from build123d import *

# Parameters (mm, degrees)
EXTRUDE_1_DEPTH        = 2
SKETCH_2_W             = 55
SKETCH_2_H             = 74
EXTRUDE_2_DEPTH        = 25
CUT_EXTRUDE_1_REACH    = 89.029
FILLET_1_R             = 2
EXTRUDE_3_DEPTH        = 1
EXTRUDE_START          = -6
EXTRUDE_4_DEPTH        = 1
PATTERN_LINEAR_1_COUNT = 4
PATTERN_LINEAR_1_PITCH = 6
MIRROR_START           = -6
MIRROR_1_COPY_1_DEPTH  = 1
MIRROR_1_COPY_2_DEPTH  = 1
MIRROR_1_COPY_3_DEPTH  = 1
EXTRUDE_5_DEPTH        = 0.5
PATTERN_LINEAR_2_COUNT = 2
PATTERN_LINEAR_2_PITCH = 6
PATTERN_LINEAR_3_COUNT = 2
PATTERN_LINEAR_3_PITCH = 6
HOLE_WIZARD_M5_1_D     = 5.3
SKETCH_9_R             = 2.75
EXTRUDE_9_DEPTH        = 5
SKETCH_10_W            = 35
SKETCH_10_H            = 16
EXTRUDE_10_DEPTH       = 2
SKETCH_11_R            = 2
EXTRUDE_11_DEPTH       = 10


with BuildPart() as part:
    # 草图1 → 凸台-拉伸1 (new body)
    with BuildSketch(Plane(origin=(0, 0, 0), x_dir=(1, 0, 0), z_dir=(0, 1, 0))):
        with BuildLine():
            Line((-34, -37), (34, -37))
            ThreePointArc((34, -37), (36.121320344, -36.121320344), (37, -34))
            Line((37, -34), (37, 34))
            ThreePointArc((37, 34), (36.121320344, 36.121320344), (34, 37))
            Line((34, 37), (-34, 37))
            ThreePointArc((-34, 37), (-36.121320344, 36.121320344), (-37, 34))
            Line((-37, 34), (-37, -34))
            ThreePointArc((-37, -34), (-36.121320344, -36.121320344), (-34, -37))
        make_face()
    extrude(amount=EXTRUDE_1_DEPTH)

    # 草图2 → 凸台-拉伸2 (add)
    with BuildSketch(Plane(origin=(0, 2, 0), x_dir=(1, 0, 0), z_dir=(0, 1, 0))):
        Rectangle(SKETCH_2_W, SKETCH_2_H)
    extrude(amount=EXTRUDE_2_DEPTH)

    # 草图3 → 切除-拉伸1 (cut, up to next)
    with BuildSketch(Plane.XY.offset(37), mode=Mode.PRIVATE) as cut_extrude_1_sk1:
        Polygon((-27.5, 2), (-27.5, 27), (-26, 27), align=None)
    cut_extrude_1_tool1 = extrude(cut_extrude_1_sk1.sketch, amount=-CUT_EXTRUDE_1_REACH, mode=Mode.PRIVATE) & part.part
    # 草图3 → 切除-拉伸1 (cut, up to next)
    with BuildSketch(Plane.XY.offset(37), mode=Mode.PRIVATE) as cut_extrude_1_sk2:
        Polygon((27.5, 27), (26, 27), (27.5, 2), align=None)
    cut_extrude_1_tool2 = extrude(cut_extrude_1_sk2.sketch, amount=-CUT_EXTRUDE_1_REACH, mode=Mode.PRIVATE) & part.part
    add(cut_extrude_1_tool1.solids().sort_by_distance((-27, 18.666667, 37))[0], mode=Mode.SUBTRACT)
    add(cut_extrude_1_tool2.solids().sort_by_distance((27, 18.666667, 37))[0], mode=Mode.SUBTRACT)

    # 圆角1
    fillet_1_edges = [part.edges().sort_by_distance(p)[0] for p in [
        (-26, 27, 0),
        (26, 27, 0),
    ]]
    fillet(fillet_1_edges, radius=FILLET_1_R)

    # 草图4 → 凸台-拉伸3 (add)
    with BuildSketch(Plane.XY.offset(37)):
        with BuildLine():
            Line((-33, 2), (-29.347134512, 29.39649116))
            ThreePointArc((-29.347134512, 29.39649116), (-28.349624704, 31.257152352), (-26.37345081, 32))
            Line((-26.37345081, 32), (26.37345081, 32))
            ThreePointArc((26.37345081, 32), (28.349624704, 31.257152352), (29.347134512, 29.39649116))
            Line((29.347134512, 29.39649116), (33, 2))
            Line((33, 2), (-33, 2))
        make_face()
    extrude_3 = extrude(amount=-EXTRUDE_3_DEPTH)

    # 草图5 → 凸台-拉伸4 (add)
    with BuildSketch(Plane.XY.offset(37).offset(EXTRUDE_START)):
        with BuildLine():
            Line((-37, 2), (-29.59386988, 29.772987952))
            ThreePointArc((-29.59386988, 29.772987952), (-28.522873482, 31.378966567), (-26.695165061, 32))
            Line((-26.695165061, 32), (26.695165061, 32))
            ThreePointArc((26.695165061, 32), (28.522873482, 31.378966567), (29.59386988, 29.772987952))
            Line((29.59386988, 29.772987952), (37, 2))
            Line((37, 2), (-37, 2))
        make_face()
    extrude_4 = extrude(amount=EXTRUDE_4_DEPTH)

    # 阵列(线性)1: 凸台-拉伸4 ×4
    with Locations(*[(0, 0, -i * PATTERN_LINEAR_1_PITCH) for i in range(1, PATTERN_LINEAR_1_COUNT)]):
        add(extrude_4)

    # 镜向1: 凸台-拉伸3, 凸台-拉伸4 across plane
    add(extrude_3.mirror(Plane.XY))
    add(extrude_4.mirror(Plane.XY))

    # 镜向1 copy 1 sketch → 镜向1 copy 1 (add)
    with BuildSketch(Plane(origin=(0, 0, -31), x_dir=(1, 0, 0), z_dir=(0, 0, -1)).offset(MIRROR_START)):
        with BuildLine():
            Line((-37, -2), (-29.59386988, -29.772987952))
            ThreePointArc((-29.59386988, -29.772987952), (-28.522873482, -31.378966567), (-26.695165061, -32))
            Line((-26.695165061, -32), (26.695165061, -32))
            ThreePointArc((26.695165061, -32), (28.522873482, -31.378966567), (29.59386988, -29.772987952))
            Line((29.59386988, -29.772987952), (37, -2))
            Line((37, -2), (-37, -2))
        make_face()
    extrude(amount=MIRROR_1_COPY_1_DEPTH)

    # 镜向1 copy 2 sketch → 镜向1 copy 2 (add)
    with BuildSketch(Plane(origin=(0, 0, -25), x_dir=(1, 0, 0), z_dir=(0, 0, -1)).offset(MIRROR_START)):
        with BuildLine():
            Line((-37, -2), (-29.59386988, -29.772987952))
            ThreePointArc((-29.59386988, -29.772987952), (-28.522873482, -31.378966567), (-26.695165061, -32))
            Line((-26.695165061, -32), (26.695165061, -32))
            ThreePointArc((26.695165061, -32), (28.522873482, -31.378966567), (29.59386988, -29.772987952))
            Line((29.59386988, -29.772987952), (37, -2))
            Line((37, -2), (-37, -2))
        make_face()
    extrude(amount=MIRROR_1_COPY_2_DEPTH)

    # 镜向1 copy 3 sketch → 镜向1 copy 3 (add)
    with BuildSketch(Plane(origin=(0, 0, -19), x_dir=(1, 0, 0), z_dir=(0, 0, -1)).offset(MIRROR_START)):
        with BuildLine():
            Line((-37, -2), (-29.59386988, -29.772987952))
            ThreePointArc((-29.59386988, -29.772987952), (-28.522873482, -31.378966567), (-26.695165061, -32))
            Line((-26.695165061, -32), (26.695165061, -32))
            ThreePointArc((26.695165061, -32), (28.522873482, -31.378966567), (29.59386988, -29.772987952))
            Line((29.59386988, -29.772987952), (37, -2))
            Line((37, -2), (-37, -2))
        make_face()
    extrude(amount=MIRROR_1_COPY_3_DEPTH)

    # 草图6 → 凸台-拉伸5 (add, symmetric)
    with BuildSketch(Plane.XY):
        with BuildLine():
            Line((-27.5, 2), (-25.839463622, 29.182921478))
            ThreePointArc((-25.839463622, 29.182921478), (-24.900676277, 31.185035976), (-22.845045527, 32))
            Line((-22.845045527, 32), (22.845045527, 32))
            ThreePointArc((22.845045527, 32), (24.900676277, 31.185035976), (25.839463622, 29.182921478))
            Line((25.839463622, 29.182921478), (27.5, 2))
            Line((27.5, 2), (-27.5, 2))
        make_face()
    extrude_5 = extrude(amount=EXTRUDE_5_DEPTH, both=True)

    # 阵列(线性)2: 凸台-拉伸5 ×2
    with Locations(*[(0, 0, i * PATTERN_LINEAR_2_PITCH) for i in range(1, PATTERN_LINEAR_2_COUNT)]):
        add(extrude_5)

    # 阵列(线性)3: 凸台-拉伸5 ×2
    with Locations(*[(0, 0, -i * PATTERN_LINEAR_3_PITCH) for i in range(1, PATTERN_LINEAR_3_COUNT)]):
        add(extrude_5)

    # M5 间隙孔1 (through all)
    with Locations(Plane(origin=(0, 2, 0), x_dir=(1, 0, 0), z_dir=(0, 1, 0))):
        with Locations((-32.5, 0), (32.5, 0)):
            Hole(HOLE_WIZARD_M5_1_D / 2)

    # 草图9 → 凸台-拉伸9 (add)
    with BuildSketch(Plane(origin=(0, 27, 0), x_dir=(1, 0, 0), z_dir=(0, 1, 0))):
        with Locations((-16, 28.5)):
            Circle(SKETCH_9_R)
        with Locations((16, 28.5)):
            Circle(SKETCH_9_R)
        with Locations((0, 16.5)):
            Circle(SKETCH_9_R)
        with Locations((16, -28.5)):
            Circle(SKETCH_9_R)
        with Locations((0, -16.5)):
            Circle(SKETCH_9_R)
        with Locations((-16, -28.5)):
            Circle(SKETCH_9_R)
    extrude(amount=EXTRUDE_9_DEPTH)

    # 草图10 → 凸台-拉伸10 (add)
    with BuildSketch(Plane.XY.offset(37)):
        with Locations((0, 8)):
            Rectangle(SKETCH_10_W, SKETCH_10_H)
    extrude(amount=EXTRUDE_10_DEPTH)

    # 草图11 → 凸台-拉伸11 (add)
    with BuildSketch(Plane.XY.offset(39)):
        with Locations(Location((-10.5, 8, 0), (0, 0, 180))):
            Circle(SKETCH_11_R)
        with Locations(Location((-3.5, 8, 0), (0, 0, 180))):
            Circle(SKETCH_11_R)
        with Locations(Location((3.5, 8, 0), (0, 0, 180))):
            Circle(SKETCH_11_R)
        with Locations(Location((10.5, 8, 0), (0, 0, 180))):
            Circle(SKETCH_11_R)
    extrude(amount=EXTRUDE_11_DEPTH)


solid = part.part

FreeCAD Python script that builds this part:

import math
import FreeCAD as App
import Part
import Sketcher

V = App.Vector
Q = App.Units.Quantity


def edges_at(feature, points):
    """Names of the edges that pass closest to the given points."""
    edges = feature.Shape.Edges
    near = lambda p: min(range(len(edges)), key=lambda i: edges[i].distToShape(Part.Vertex(*p))[0])
    return sorted({f"Edge{near(p) + 1}" for p in points})

doc = App.newDocument("Part")
body = doc.addObject("PartDesign::Body", "Body")

sketch1 = doc.addObject("Sketcher::SketchObject", "Sketch")
body.addObject(sketch1)
sketch1.AttachmentSupport = (doc.XZ_Plane, [""])
sketch1.MapMode = "FlatFace"
sketch1.addGeometry([
    Part.LineSegment(V(-34, 37, 0), V(34, 37, 0)),
    Part.ArcOfCircle(Part.Circle(V(34, 34, 0), V(0, 0, 1), 3), math.radians(0), math.radians(90)),
    Part.LineSegment(V(37, 34, 0), V(37, -34, 0)),
    Part.ArcOfCircle(Part.Circle(V(34, -34, 0), V(0, 0, 1), 3), math.radians(-90), math.radians(0)),
    Part.LineSegment(V(34, -37, 0), V(-34, -37, 0)),
    Part.ArcOfCircle(Part.Circle(V(-34, -34, 0), V(0, 0, 1), 3), math.radians(180), math.radians(270)),
    Part.LineSegment(V(-37, -34, 0), V(-37, 34, 0)),
    Part.ArcOfCircle(Part.Circle(V(-34, 34, 0), V(0, 0, 1), 3), math.radians(90), math.radians(180)),
], False)
sketch1.addConstraint([
    Sketcher.Constraint("Tangent", 0, 2, 1, 2),
    Sketcher.Constraint("Tangent", 1, 1, 2, 1),
    Sketcher.Constraint("Tangent", 2, 2, 3, 2),
    Sketcher.Constraint("Tangent", 3, 1, 4, 1),
    Sketcher.Constraint("Tangent", 4, 2, 5, 2),
    Sketcher.Constraint("Tangent", 5, 1, 6, 1),
    Sketcher.Constraint("Tangent", 6, 2, 7, 2),
    Sketcher.Constraint("Tangent", 7, 1, 0, 1),
    Sketcher.Constraint("Horizontal", 0),
    Sketcher.Constraint("Vertical", 2),
    Sketcher.Constraint("Horizontal", 4),
    Sketcher.Constraint("Vertical", 6),
    Sketcher.Constraint("Equal", 1, 3),
    Sketcher.Constraint("Equal", 3, 5),
    Sketcher.Constraint("Equal", 5, 7),
    Sketcher.Constraint("Symmetric", 1, 3, 5, 3, -1, 1),
    Sketcher.Constraint("Equal", 4, 2),
    Sketcher.Constraint("Radius", 1, Q("3 mm")),
    Sketcher.Constraint("DistanceX", 0, 1, 0, 2, Q("68 mm")),
])
pad1 = doc.addObject("PartDesign::Pad", "Pad")
body.addObject(pad1)
pad1.Profile = sketch1
pad1.Length = 2
pad1.Reversed = True

sketch2 = doc.addObject("Sketcher::SketchObject", "Sketch001")
body.addObject(sketch2)
sketch2.AttachmentSupport = (doc.XZ_Plane, [""])
sketch2.MapMode = "FlatFace"
sketch2.AttachmentOffset = App.Placement(V(0, 0, -2), App.Rotation())
sketch2.addGeometry([
    Part.LineSegment(V(-28, -37, 0), V(-28, 37, 0)),
    Part.LineSegment(V(-28, 37, 0), V(28, 37, 0)),
    Part.LineSegment(V(28, 37, 0), V(28, -37, 0)),
    Part.LineSegment(V(28, -37, 0), V(-28, -37, 0)),
], False)
sketch2.addConstraint([
    Sketcher.Constraint("Coincident", 0, 2, 1, 1),
    Sketcher.Constraint("Coincident", 1, 2, 2, 1),
    Sketcher.Constraint("Coincident", 2, 2, 3, 1),
    Sketcher.Constraint("Coincident", 3, 2, 0, 1),
    Sketcher.Constraint("Vertical", 0),
    Sketcher.Constraint("Horizontal", 1),
    Sketcher.Constraint("Vertical", 2),
    Sketcher.Constraint("Horizontal", 3),
    Sketcher.Constraint("Symmetric", 0, 2, 2, 2, -1, 1),
    Sketcher.Constraint("DistanceX", 1, 1, 1, 2, Q("55 mm")),
    Sketcher.Constraint("DistanceY", 0, 1, 0, 2, Q("74 mm")),
])
pad2 = doc.addObject("PartDesign::Pad", "Pad001")
body.addObject(pad2)
pad2.Profile = sketch2
pad2.Length = 25
pad2.Reversed = True

sketch3 = doc.addObject("Sketcher::SketchObject", "Sketch002")
body.addObject(sketch3)
sketch3.AttachmentSupport = (doc.XY_Plane, [""])
sketch3.MapMode = "FlatFace"
sketch3.AttachmentOffset = App.Placement(V(0, 0, 37), App.Rotation())
sketch3.addGeometry([
    Part.LineSegment(V(-27.5, 27, 0), V(-27.5, 2, 0)),
    Part.LineSegment(V(-27.5, 2, 0), V(-26, 27, 0)),
    Part.LineSegment(V(-26, 27, 0), V(-27.5, 27, 0)),
], False)
sketch3.addConstraint([
    Sketcher.Constraint("Coincident", 0, 2, 1, 1),
    Sketcher.Constraint("Coincident", 1, 2, 2, 1),
    Sketcher.Constraint("Coincident", 2, 2, 0, 1),
    Sketcher.Constraint("Vertical", 0),
    Sketcher.Constraint("Horizontal", 2),
    Sketcher.Constraint("DistanceY", 0, 2, 0, 1, Q("25 mm")),
    Sketcher.Constraint("DistanceX", 2, 2, 2, 1, Q("1.5 mm")),
    Sketcher.Constraint("DistanceY", -1, 1, 0, 2, Q("2 mm")),
    Sketcher.Constraint("DistanceX", 1, 2, -1, 1, Q("26 mm")),
])
pocket1 = doc.addObject("PartDesign::Pocket", "Pocket")
body.addObject(pocket1)
pocket1.Profile = sketch3
pocket1.Type = "UpToFirst"

sketch4 = doc.addObject("Sketcher::SketchObject", "Sketch003")
body.addObject(sketch4)
sketch4.AttachmentSupport = (doc.XY_Plane, [""])
sketch4.MapMode = "FlatFace"
sketch4.AttachmentOffset = App.Placement(V(0, 0, 37), App.Rotation())
sketch4.addGeometry([
    Part.LineSegment(V(27.5, 27, 0), V(26, 27, 0)),
    Part.LineSegment(V(26, 27, 0), V(27.5, 2, 0)),
    Part.LineSegment(V(27.5, 2, 0), V(27.5, 27, 0)),
], False)
sketch4.addConstraint([
    Sketcher.Constraint("Coincident", 0, 2, 1, 1),
    Sketcher.Constraint("Coincident", 1, 2, 2, 1),
    Sketcher.Constraint("Coincident", 2, 2, 0, 1),
    Sketcher.Constraint("Horizontal", 0),
    Sketcher.Constraint("Vertical", 2),
    Sketcher.Constraint("DistanceY", 2, 1, 2, 2, Q("25 mm")),
    Sketcher.Constraint("DistanceX", 0, 2, 0, 1, Q("1.5 mm")),
    Sketcher.Constraint("DistanceX", -1, 1, 0, 2, Q("26 mm")),
    Sketcher.Constraint("DistanceY", -1, 1, 0, 2, Q("27 mm")),
])
pocket2 = doc.addObject("PartDesign::Pocket", "Pocket001")
body.addObject(pocket2)
pocket2.Profile = sketch4
pocket2.Type = "UpToFirst"
doc.recompute()

fillet = doc.addObject("PartDesign::Fillet", "Fillet")
body.addObject(fillet)
fillet.Base = (pocket2, edges_at(pocket2, [(-26, 27, 0), (26, 27, 0)]))
fillet.Radius = 2

sketch5 = doc.addObject("Sketcher::SketchObject", "Sketch004")
body.addObject(sketch5)
sketch5.AttachmentSupport = (doc.XY_Plane, [""])
sketch5.MapMode = "FlatFace"
sketch5.AttachmentOffset = App.Placement(V(0, 0, 37), App.Rotation())
sketch5.addGeometry([
    Part.LineSegment(V(-29.3, 29.4, 0), V(-33, 2, 0)),
    Part.LineSegment(V(-33, 2, 0), V(33, 2, 0)),
    Part.LineSegment(V(33, 2, 0), V(29.3, 29.4, 0)),
    Part.ArcOfCircle(Part.Circle(V(26.4, 29, 0), V(0, 0, 1), 3), math.radians(8), math.radians(90)),
    Part.LineSegment(V(26.4, 32, 0), V(-26.4, 32, 0)),
    Part.ArcOfCircle(Part.Circle(V(-26.4, 29, 0), V(0, 0, 1), 3), math.radians(90), math.radians(172)),
], False)
sketch5.addConstraint([
    Sketcher.Constraint("Coincident", 0, 2, 1, 1),
    Sketcher.Constraint("Coincident", 1, 2, 2, 1),
    Sketcher.Constraint("Tangent", 2, 2, 3, 1),
    Sketcher.Constraint("Tangent", 3, 2, 4, 1),
    Sketcher.Constraint("Tangent", 4, 2, 5, 1),
    Sketcher.Constraint("Tangent", 5, 2, 0, 1),
    Sketcher.Constraint("Horizontal", 1),
    Sketcher.Constraint("Horizontal", 4),
    Sketcher.Constraint("Equal", 3, 5),
    Sketcher.Constraint("Symmetric", 2, 2, 5, 2, -2),
    Sketcher.Constraint("Radius", 3, Q("3 mm")),
    Sketcher.Constraint("DistanceX", 1, 1, 1, 2, Q("66 mm")),
    Sketcher.Constraint("DistanceY", -1, 1, 3, 3, Q("29 mm")),
    Sketcher.Constraint("DistanceY", -1, 1, 0, 2, Q("2 mm")),
    Sketcher.Constraint("DistanceX", 4, 2, 4, 1, Q("52.746902 mm")),
])
pad3 = doc.addObject("PartDesign::Pad", "Pad002")
body.addObject(pad3)
pad3.Profile = sketch5
pad3.Length = 1
pad3.Reversed = True

sketch6 = doc.addObject("Sketcher::SketchObject", "Sketch005")
body.addObject(sketch6)
sketch6.AttachmentSupport = (doc.XY_Plane, [""])
sketch6.MapMode = "FlatFace"
sketch6.AttachmentOffset = App.Placement(V(0, 0, 31), App.Rotation())
sketch6.addGeometry([
    Part.LineSegment(V(-29.6, 29.8, 0), V(-37, 2, 0)),
    Part.LineSegment(V(-37, 2, 0), V(37, 2, 0)),
    Part.LineSegment(V(37, 2, 0), V(29.6, 29.8, 0)),
    Part.ArcOfCircle(Part.Circle(V(26.7, 29, 0), V(0, 0, 1), 3), math.radians(15), math.radians(90)),
    Part.LineSegment(V(26.7, 32, 0), V(-26.7, 32, 0)),
    Part.ArcOfCircle(Part.Circle(V(-26.7, 29, 0), V(0, 0, 1), 3), math.radians(90), math.radians(165)),
], False)
sketch6.addConstraint([
    Sketcher.Constraint("Coincident", 0, 2, 1, 1),
    Sketcher.Constraint("Coincident", 1, 2, 2, 1),
    Sketcher.Constraint("Tangent", 2, 2, 3, 1),
    Sketcher.Constraint("Tangent", 3, 2, 4, 1),
    Sketcher.Constraint("Tangent", 4, 2, 5, 1),
    Sketcher.Constraint("Tangent", 5, 2, 0, 1),
    Sketcher.Constraint("Horizontal", 1),
    Sketcher.Constraint("Horizontal", 4),
    Sketcher.Constraint("Equal", 3, 5),
    Sketcher.Constraint("Symmetric", 2, 2, 5, 2, -2),
    Sketcher.Constraint("Radius", 3, Q("3 mm")),
    Sketcher.Constraint("DistanceX", 1, 1, 1, 2, Q("74 mm")),
    Sketcher.Constraint("DistanceY", -1, 1, 3, 3, Q("29 mm")),
    Sketcher.Constraint("DistanceY", -1, 1, 0, 2, Q("2 mm")),
    Sketcher.Constraint("DistanceX", 4, 2, 4, 1, Q("53.39033 mm")),
])
pad4 = doc.addObject("PartDesign::Pad", "Pad003")
body.addObject(pad4)
pad4.Profile = sketch6
pad4.Length = 1
doc.recompute()

linearpattern = doc.addObject("PartDesign::LinearPattern", "LinearPattern")
body.addObject(linearpattern)
linearpattern.Originals = [pad4]
linearpattern.Direction = (doc.Z_Axis, [""])
linearpattern.Mode = "offset"
linearpattern.Offset = 6
linearpattern.Occurrences = 4
linearpattern.Reversed = True
body.Tip = linearpattern
doc.recompute()

mirrored = doc.addObject("PartDesign::Mirrored", "Mirrored")
body.addObject(mirrored)
mirrored.Originals = [pad3, pad4]
mirrored.MirrorPlane = (doc.XY_Plane, [""])
body.Tip = mirrored

sketch7 = doc.addObject("Sketcher::SketchObject", "Sketch006")
body.addObject(sketch7)
sketch7.AttachmentSupport = (doc.XY_Plane, [""])
sketch7.MapMode = "FlatFace"
sketch7.AttachmentOffset = App.Placement(V(0, 0, -25), App.Rotation())
sketch7.addGeometry([
    Part.LineSegment(V(-37, 2, 0), V(-29.6, 29.8, 0)),
    Part.ArcOfCircle(Part.Circle(V(-26.7, 29, 0), V(0, 0, 1), 3), math.radians(90), math.radians(165)),
    Part.LineSegment(V(-26.7, 32, 0), V(26.7, 32, 0)),
    Part.ArcOfCircle(Part.Circle(V(26.7, 29, 0), V(0, 0, 1), 3), math.radians(15), math.radians(90)),
    Part.LineSegment(V(29.6, 29.8, 0), V(37, 2, 0)),
    Part.LineSegment(V(37, 2, 0), V(-37, 2, 0)),
], False)
sketch7.addConstraint([
    Sketcher.Constraint("Tangent", 0, 2, 1, 2),
    Sketcher.Constraint("Tangent", 1, 1, 2, 1),
    Sketcher.Constraint("Tangent", 2, 2, 3, 2),
    Sketcher.Constraint("Tangent", 3, 1, 4, 1),
    Sketcher.Constraint("Coincident", 4, 2, 5, 1),
    Sketcher.Constraint("Coincident", 5, 2, 0, 1),
    Sketcher.Constraint("Horizontal", 2),
    Sketcher.Constraint("Horizontal", 5),
    Sketcher.Constraint("Equal", 1, 3),
    Sketcher.Constraint("Symmetric", 0, 2, 3, 1, -2),
    Sketcher.Constraint("Radius", 1, Q("3 mm")),
    Sketcher.Constraint("DistanceX", 5, 2, 5, 1, Q("74 mm")),
    Sketcher.Constraint("DistanceY", -1, 1, 1, 3, Q("29 mm")),
    Sketcher.Constraint("DistanceY", -1, 1, 4, 2, Q("2 mm")),
    Sketcher.Constraint("DistanceX", 2, 1, 2, 2, Q("53.39033 mm")),
])
pad5 = doc.addObject("PartDesign::Pad", "Pad004")
body.addObject(pad5)
pad5.Profile = sketch7
pad5.Length = 1
pad5.Reversed = True

sketch8 = doc.addObject("Sketcher::SketchObject", "Sketch007")
body.addObject(sketch8)
sketch8.AttachmentSupport = (doc.XY_Plane, [""])
sketch8.MapMode = "FlatFace"
sketch8.AttachmentOffset = App.Placement(V(0, 0, -19), App.Rotation())
sketch8.addGeometry([
    Part.LineSegment(V(-37, 2, 0), V(-29.6, 29.8, 0)),
    Part.ArcOfCircle(Part.Circle(V(-26.7, 29, 0), V(0, 0, 1), 3), math.radians(90), math.radians(165)),
    Part.LineSegment(V(-26.7, 32, 0), V(26.7, 32, 0)),
    Part.ArcOfCircle(Part.Circle(V(26.7, 29, 0), V(0, 0, 1), 3), math.radians(15), math.radians(90)),
    Part.LineSegment(V(29.6, 29.8, 0), V(37, 2, 0)),
    Part.LineSegment(V(37, 2, 0), V(-37, 2, 0)),
], False)
sketch8.addConstraint([
    Sketcher.Constraint("Tangent", 0, 2, 1, 2),
    Sketcher.Constraint("Tangent", 1, 1, 2, 1),
    Sketcher.Constraint("Tangent", 2, 2, 3, 2),
    Sketcher.Constraint("Tangent", 3, 1, 4, 1),
    Sketcher.Constraint("Coincident", 4, 2, 5, 1),
    Sketcher.Constraint("Coincident", 5, 2, 0, 1),
    Sketcher.Constraint("Horizontal", 2),
    Sketcher.Constraint("Horizontal", 5),
    Sketcher.Constraint("Equal", 1, 3),
    Sketcher.Constraint("Symmetric", 0, 2, 3, 1, -2),
    Sketcher.Constraint("Radius", 1, Q("3 mm")),
    Sketcher.Constraint("DistanceX", 5, 2, 5, 1, Q("74 mm")),
    Sketcher.Constraint("DistanceY", -1, 1, 1, 3, Q("29 mm")),
    Sketcher.Constraint("DistanceY", -1, 1, 4, 2, Q("2 mm")),
    Sketcher.Constraint("DistanceX", 2, 1, 2, 2, Q("53.39033 mm")),
])
pad6 = doc.addObject("PartDesign::Pad", "Pad005")
body.addObject(pad6)
pad6.Profile = sketch8
pad6.Length = 1
pad6.Reversed = True

sketch9 = doc.addObject("Sketcher::SketchObject", "Sketch008")
body.addObject(sketch9)
sketch9.AttachmentSupport = (doc.XY_Plane, [""])
sketch9.MapMode = "FlatFace"
sketch9.AttachmentOffset = App.Placement(V(0, 0, -13), App.Rotation())
sketch9.addGeometry([
    Part.LineSegment(V(-37, 2, 0), V(-29.6, 29.8, 0)),
    Part.ArcOfCircle(Part.Circle(V(-26.7, 29, 0), V(0, 0, 1), 3), math.radians(90), math.radians(165)),
    Part.LineSegment(V(-26.7, 32, 0), V(26.7, 32, 0)),
    Part.ArcOfCircle(Part.Circle(V(26.7, 29, 0), V(0, 0, 1), 3), math.radians(15), math.radians(90)),
    Part.LineSegment(V(29.6, 29.8, 0), V(37, 2, 0)),
    Part.LineSegment(V(37, 2, 0), V(-37, 2, 0)),
], False)
sketch9.addConstraint([
    Sketcher.Constraint("Tangent", 0, 2, 1, 2),
    Sketcher.Constraint("Tangent", 1, 1, 2, 1),
    Sketcher.Constraint("Tangent", 2, 2, 3, 2),
    Sketcher.Constraint("Tangent", 3, 1, 4, 1),
    Sketcher.Constraint("Coincident", 4, 2, 5, 1),
    Sketcher.Constraint("Coincident", 5, 2, 0, 1),
    Sketcher.Constraint("Horizontal", 2),
    Sketcher.Constraint("Horizontal", 5),
    Sketcher.Constraint("Equal", 1, 3),
    Sketcher.Constraint("Symmetric", 0, 2, 3, 1, -2),
    Sketcher.Constraint("Radius", 1, Q("3 mm")),
    Sketcher.Constraint("DistanceX", 5, 2, 5, 1, Q("74 mm")),
    Sketcher.Constraint("DistanceY", -1, 1, 1, 3, Q("29 mm")),
    Sketcher.Constraint("DistanceY", -1, 1, 4, 2, Q("2 mm")),
    Sketcher.Constraint("DistanceX", 2, 1, 2, 2, Q("53.39033 mm")),
])
pad7 = doc.addObject("PartDesign::Pad", "Pad006")
body.addObject(pad7)
pad7.Profile = sketch9
pad7.Length = 1
pad7.Reversed = True

sketch10 = doc.addObject("Sketcher::SketchObject", "Sketch009")
body.addObject(sketch10)
sketch10.AttachmentSupport = (doc.XY_Plane, [""])
sketch10.MapMode = "FlatFace"
sketch10.addGeometry([
    Part.LineSegment(V(-25.8, 29.2, 0), V(-27.5, 2, 0)),
    Part.LineSegment(V(-27.5, 2, 0), V(27.5, 2, 0)),
    Part.LineSegment(V(27.5, 2, 0), V(25.8, 29.2, 0)),
    Part.ArcOfCircle(Part.Circle(V(22.8, 29, 0), V(0, 0, 1), 3), math.radians(3), math.radians(90)),
    Part.LineSegment(V(22.8, 32, 0), V(-22.8, 32, 0)),
    Part.ArcOfCircle(Part.Circle(V(-22.8, 29, 0), V(0, 0, 1), 3), math.radians(90), math.radians(177)),
], False)
sketch10.addConstraint([
    Sketcher.Constraint("Coincident", 0, 2, 1, 1),
    Sketcher.Constraint("Coincident", 1, 2, 2, 1),
    Sketcher.Constraint("Tangent", 2, 2, 3, 1),
    Sketcher.Constraint("Tangent", 3, 2, 4, 1),
    Sketcher.Constraint("Tangent", 4, 2, 5, 1),
    Sketcher.Constraint("Tangent", 5, 2, 0, 1),
    Sketcher.Constraint("Horizontal", 1),
    Sketcher.Constraint("Horizontal", 4),
    Sketcher.Constraint("Equal", 3, 5),
    Sketcher.Constraint("Symmetric", 2, 2, 5, 2, -2),
    Sketcher.Constraint("Radius", 3, Q("3 mm")),
    Sketcher.Constraint("DistanceX", 1, 1, 1, 2, Q("55 mm")),
    Sketcher.Constraint("DistanceY", -1, 1, 3, 3, Q("29 mm")),
    Sketcher.Constraint("DistanceY", -1, 1, 0, 2, Q("2 mm")),
    Sketcher.Constraint("DistanceX", 4, 2, 4, 1, Q("45.690091 mm")),
])
pad8 = doc.addObject("PartDesign::Pad", "Pad007")
body.addObject(pad8)
pad8.Profile = sketch10
pad8.Length = 1
pad8.Midplane = True
doc.recompute()

linearpattern2 = doc.addObject("PartDesign::LinearPattern", "LinearPattern001")
body.addObject(linearpattern2)
linearpattern2.Originals = [pad8]
linearpattern2.Direction = (doc.Z_Axis, [""])
linearpattern2.Mode = "offset"
linearpattern2.Offset = 6
linearpattern2.Occurrences = 2
body.Tip = linearpattern2
doc.recompute()

linearpattern3 = doc.addObject("PartDesign::LinearPattern", "LinearPattern002")
body.addObject(linearpattern3)
linearpattern3.Originals = [pad8]
linearpattern3.Direction = (doc.Z_Axis, [""])
linearpattern3.Mode = "offset"
linearpattern3.Offset = 6
linearpattern3.Occurrences = 2
linearpattern3.Reversed = True
body.Tip = linearpattern3

sketch11 = doc.addObject("Sketcher::SketchObject", "Sketch010")
body.addObject(sketch11)
sketch11.AttachmentSupport = (doc.XZ_Plane, [""])
sketch11.MapMode = "FlatFace"
sketch11.AttachmentOffset = App.Placement(V(0, 0, -2), App.Rotation())
sketch11.addGeometry([
    Part.Circle(V(-32.5, 0, 0), V(0, 0, 1), 2.6),
    Part.Circle(V(32.5, 0, 0), V(0, 0, 1), 2.6),
], False)
sketch11.addConstraint([
    Sketcher.Constraint("Equal", 0, 1),
    Sketcher.Constraint("Symmetric", 0, 3, 1, 3, -1, 1),
    Sketcher.Constraint("PointOnObject", 0, 3, -1),
    Sketcher.Constraint("Diameter", 0, Q("5.3 mm")),
    Sketcher.Constraint("DistanceX", 0, 3, 1, 3, Q("65 mm")),
])
doc.recompute()
hole = doc.addObject("PartDesign::Hole", "Hole")
body.addObject(hole)
hole.Profile = sketch11
hole.ThreadType = "None"
hole.Diameter = 5.3
hole.DepthType = "ThroughAll"
hole.Reversed = True

sketch12 = doc.addObject("Sketcher::SketchObject", "Sketch011")
body.addObject(sketch12)
sketch12.AttachmentSupport = (doc.XZ_Plane, [""])
sketch12.MapMode = "FlatFace"
sketch12.AttachmentOffset = App.Placement(V(0, 0, -27), App.Rotation())
sketch12.addGeometry([
    Part.Circle(V(-16, -28.5, 0), V(0, 0, 1), 2.8),
    Part.Circle(V(16, -28.5, 0), V(0, 0, 1), 2.8),
    Part.Circle(V(0, -16.5, 0), V(0, 0, 1), 2.8),
    Part.Circle(V(16, 28.5, 0), V(0, 0, 1), 2.8),
    Part.Circle(V(0, 16.5, 0), V(0, 0, 1), 2.8),
    Part.Circle(V(-16, 28.5, 0), V(0, 0, 1), 2.8),
], False)
sketch12.addConstraint([
    Sketcher.Constraint("Equal", 0, 1),
    Sketcher.Constraint("Equal", 1, 2),
    Sketcher.Constraint("Equal", 2, 3),
    Sketcher.Constraint("Equal", 3, 4),
    Sketcher.Constraint("Equal", 4, 5),
    Sketcher.Constraint("Symmetric", 0, 3, 3, 3, -1, 1),
    Sketcher.Constraint("Symmetric", 2, 3, 4, 3, -1, 1),
    Sketcher.Constraint("Symmetric", 1, 3, 5, 3, -1, 1),
    Sketcher.Constraint("Symmetric", 0, 3, 1, 3, -2),
    Sketcher.Constraint("PointOnObject", 2, 3, -2),
    Sketcher.Constraint("Diameter", 0, Q("5.5 mm")),
    Sketcher.Constraint("DistanceX", 0, 3, -1, 1, Q("16 mm")),
    Sketcher.Constraint("DistanceY", 0, 3, 2, 3, Q("12 mm")),
    Sketcher.Constraint("DistanceY", 2, 3, 3, 3, Q("45 mm")),
])
pad9 = doc.addObject("PartDesign::Pad", "Pad008")
body.addObject(pad9)
pad9.Profile = sketch12
pad9.Length = 5
pad9.Reversed = True

sketch13 = doc.addObject("Sketcher::SketchObject", "Sketch012")
body.addObject(sketch13)
sketch13.AttachmentSupport = (doc.XY_Plane, [""])
sketch13.MapMode = "FlatFace"
sketch13.AttachmentOffset = App.Placement(V(0, 0, 37), App.Rotation())
sketch13.addGeometry([
    Part.LineSegment(V(-18, 16, 0), V(-18, 0, 0)),
    Part.LineSegment(V(-18, 0, 0), V(18, 0, 0)),
    Part.LineSegment(V(18, 0, 0), V(18, 16, 0)),
    Part.LineSegment(V(18, 16, 0), V(-18, 16, 0)),
], False)
sketch13.addConstraint([
    Sketcher.Constraint("Coincident", 0, 2, 1, 1),
    Sketcher.Constraint("Coincident", 1, 2, 2, 1),
    Sketcher.Constraint("Coincident", 2, 2, 3, 1),
    Sketcher.Constraint("Coincident", 3, 2, 0, 1),
    Sketcher.Constraint("Vertical", 0),
    Sketcher.Constraint("Horizontal", 1),
    Sketcher.Constraint("Vertical", 2),
    Sketcher.Constraint("Horizontal", 3),
    Sketcher.Constraint("Symmetric", 0, 2, 1, 2, -1, 1),
    Sketcher.Constraint("DistanceX", 1, 1, 1, 2, Q("35 mm")),
    Sketcher.Constraint("DistanceY", 0, 2, 0, 1, Q("16 mm")),
])
pad10 = doc.addObject("PartDesign::Pad", "Pad009")
body.addObject(pad10)
pad10.Profile = sketch13
pad10.Length = 2

sketch14 = doc.addObject("Sketcher::SketchObject", "Sketch013")
body.addObject(sketch14)
sketch14.AttachmentSupport = (doc.XY_Plane, [""])
sketch14.MapMode = "FlatFace"
sketch14.AttachmentOffset = App.Placement(V(0, 0, 39), App.Rotation())
sketch14.addGeometry([
    Part.Circle(V(-10.5, 8, 0), V(0, 0, 1), 2),
    Part.Circle(V(-3.5, 8, 0), V(0, 0, 1), 2),
    Part.Circle(V(3.5, 8, 0), V(0, 0, 1), 2),
    Part.Circle(V(10.5, 8, 0), V(0, 0, 1), 2),
], False)
sketch14.addConstraint([
    Sketcher.Constraint("Equal", 0, 1),
    Sketcher.Constraint("Equal", 1, 2),
    Sketcher.Constraint("Equal", 2, 3),
    Sketcher.Constraint("Symmetric", 1, 3, 2, 3, -2),
    Sketcher.Constraint("Symmetric", 0, 3, 3, 3, -2),
    Sketcher.Constraint("Horizontal", 0, 3, 1, 3),
    Sketcher.Constraint("Diameter", 0, Q("4 mm")),
    Sketcher.Constraint("DistanceY", -1, 1, 0, 3, Q("8 mm")),
    Sketcher.Constraint("DistanceX", 0, 3, 1, 3, Q("7 mm")),
    Sketcher.Constraint("DistanceX", 1, 3, 2, 3, Q("7 mm")),
])
pad11 = doc.addObject("PartDesign::Pad", "Pad010")
body.addObject(pad11)
pad11.Profile = sketch14
pad11.Length = 10

doc.recompute()
